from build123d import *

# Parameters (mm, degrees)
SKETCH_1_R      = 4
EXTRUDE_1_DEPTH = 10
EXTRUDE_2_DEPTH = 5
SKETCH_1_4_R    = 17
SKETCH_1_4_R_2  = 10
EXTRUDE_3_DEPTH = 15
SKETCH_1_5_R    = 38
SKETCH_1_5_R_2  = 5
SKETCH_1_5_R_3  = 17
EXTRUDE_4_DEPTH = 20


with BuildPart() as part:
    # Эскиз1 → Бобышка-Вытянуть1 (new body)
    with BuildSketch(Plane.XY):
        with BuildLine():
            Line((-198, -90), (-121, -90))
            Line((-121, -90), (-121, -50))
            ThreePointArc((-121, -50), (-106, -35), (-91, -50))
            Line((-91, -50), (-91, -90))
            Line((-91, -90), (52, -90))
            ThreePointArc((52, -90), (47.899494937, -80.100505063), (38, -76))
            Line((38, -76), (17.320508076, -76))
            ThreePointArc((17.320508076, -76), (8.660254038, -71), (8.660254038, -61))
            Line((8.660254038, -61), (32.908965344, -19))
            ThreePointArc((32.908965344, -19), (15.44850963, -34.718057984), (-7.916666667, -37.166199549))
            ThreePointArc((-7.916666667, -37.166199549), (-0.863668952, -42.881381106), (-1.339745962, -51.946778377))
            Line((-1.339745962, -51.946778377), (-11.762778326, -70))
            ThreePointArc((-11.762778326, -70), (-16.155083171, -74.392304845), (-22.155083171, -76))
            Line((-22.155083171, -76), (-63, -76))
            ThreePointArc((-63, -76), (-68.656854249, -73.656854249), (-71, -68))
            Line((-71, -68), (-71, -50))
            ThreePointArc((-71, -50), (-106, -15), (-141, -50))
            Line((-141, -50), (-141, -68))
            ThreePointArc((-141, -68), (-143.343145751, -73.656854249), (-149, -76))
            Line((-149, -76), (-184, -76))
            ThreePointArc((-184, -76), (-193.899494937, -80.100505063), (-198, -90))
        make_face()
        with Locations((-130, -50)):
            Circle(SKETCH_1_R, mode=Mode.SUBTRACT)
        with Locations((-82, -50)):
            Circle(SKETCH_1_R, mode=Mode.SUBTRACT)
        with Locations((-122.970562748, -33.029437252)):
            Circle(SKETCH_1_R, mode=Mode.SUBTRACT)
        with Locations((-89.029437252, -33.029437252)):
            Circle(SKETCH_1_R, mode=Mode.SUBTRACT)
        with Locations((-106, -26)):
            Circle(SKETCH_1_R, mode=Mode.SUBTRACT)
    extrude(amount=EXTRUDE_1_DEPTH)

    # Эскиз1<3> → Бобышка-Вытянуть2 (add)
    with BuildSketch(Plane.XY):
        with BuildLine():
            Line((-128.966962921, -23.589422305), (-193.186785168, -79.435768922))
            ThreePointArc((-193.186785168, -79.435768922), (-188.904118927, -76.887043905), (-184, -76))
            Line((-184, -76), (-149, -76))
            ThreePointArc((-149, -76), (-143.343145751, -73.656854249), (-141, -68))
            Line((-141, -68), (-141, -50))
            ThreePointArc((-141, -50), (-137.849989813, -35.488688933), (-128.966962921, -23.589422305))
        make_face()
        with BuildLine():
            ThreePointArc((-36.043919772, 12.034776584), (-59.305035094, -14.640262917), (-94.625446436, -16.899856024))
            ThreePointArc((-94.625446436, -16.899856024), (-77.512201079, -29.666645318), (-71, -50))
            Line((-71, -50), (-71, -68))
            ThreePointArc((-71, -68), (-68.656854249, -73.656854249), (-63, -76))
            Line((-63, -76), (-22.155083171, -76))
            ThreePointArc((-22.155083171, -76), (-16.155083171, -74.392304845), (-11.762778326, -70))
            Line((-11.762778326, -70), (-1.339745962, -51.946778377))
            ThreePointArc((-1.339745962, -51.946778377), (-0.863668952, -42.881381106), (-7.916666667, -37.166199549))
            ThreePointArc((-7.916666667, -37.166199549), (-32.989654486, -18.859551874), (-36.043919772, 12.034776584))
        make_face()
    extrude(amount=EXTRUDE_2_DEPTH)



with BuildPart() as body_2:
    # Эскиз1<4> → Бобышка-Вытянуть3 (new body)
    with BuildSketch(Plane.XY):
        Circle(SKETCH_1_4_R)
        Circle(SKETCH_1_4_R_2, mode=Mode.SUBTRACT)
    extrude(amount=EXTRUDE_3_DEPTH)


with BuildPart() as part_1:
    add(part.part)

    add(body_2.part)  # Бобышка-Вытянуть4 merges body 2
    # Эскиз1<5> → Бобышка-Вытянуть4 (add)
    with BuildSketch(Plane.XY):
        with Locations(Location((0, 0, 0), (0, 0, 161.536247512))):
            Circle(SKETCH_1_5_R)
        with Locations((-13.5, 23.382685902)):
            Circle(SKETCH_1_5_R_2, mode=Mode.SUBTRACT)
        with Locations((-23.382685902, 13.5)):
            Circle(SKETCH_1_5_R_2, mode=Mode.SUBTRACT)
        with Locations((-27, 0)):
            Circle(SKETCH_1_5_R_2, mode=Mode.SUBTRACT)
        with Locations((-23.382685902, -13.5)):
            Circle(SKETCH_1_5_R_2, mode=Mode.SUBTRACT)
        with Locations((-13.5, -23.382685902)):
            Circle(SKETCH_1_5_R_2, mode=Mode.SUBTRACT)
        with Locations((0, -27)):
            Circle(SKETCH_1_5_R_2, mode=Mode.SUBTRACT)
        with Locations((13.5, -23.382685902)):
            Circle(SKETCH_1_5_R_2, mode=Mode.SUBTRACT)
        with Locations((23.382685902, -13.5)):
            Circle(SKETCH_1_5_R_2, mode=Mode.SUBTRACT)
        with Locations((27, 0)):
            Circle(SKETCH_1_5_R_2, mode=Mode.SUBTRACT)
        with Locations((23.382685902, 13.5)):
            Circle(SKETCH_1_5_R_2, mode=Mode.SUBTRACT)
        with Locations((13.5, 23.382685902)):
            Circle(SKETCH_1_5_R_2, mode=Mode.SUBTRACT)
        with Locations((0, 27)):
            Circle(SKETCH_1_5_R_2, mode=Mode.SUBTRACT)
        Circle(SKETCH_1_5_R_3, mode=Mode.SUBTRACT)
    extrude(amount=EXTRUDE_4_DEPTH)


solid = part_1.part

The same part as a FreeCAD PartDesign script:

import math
import FreeCAD as App
import Part
import Sketcher
from FreeCAD import Vector
Q = App.Units.Quantity

doc = App.newDocument("Part")
body = doc.addObject("PartDesign::Body", "Body")

# Sketch on XY plane
sketch1 = body.newObject("Sketcher::SketchObject", "Sketch")
sketch1.AttachmentSupport = (doc.getObject("XY_Plane"), [""])
sketch1.MapMode = "FlatFace"
sketch1.addGeometry([
    Part.LineSegment(Vector(-198, -90, 0), Vector(-121, -90, 0)),  # 0
    Part.LineSegment(Vector(-121, -90, 0), Vector(-121, -50, 0)),  # 1
    Part.ArcOfCircle(Part.Circle(Vector(-106, -50, 0), Vector(0, 0, 1), 15), math.radians(0), math.radians(180)),  # 2
    Part.LineSegment(Vector(-91, -50, 0), Vector(-91, -90, 0)),  # 3
    Part.LineSegment(Vector(-91, -90, 0), Vector(52, -90, 0)),  # 4
    Part.ArcOfCircle(Part.Circle(Vector(38, -90, 0), Vector(0, 0, 1), 14), math.radians(0), math.radians(90)),  # 5
    Part.LineSegment(Vector(38, -76, 0), Vector(17.3, -76, 0)),  # 6
    Part.ArcOfCircle(Part.Circle(Vector(17.3, -66, 0), Vector(0, 0, 1), 10), math.radians(150), math.radians(270)),  # 7
    Part.LineSegment(Vector(8.7, -61, 0), Vector(32.9, -19, 0)),  # 8
    Part.ArcOfCircle(Part.Circle(Vector(0, 0, 0), Vector(0, 0, 1), 38), math.radians(-102), math.radians(-30)),  # 9
    Part.ArcOfCircle(Part.Circle(Vector(-10, -46.9, 0), Vector(0, 0, 1), 10), math.radians(-30), math.radians(78)),  # 10
    Part.LineSegment(Vector(-1.3, -51.9, 0), Vector(-11.8, -70, 0)),  # 11
    Part.ArcOfCircle(Part.Circle(Vector(-22.2, -64, 0), Vector(0, 0, 1), 12), math.radians(-90), math.radians(-30)),  # 12
    Part.LineSegment(Vector(-22.2, -76, 0), Vector(-63, -76, 0)),  # 13
    Part.ArcOfCircle(Part.Circle(Vector(-63, -68, 0), Vector(0, 0, 1), 8), math.radians(-180), math.radians(-90)),  # 14
    Part.LineSegment(Vector(-71, -68, 0), Vector(-71, -50, 0)),  # 15
    Part.ArcOfCircle(Part.Circle(Vector(-106, -50, 0), Vector(0, 0, 1), 35), math.radians(0), math.radians(180)),  # 16
    Part.LineSegment(Vector(-141, -50, 0), Vector(-141, -68, 0)),  # 17
    Part.ArcOfCircle(Part.Circle(Vector(-149, -68, 0), Vector(0, 0, 1), 8), math.radians(-90), math.radians(0)),  # 18
    Part.LineSegment(Vector(-149, -76, 0), Vector(-184, -76, 0)),  # 19
    Part.ArcOfCircle(Part.Circle(Vector(-184, -90, 0), Vector(0, 0, 1), 14), math.radians(90), math.radians(180)),  # 20
    Part.Circle(Vector(-130, -50, 0), Vector(0, 0, 1), 4),  # 21
    Part.Circle(Vector(-82, -50, 0), Vector(0, 0, 1), 4),  # 22
    Part.Circle(Vector(-123, -33, 0), Vector(0, 0, 1), 4),  # 23
    Part.Circle(Vector(-89, -33, 0), Vector(0, 0, 1), 4),  # 24
    Part.Circle(Vector(-106, -26, 0), Vector(0, 0, 1), 4),  # 25
], False)
sketch1.addConstraint([
    Sketcher.Constraint("Coincident", 0, 2, 1, 1),
    Sketcher.Constraint("Tangent", 1, 2, 2, 2),
    Sketcher.Constraint("Tangent", 2, 1, 3, 1),
    Sketcher.Constraint("Coincident", 3, 2, 4, 1),
    Sketcher.Constraint("Coincident", 4, 2, 5, 1),
    Sketcher.Constraint("Tangent", 5, 2, 6, 1),
    Sketcher.Constraint("Tangent", 6, 2, 7, 2),
    Sketcher.Constraint("Tangent", 7, 1, 8, 1),
    Sketcher.Constraint("Tangent", 8, 2, 9, 2),
    Sketcher.Constraint("Tangent", 9, 1, 10, 2),
    Sketcher.Constraint("Tangent", 10, 1, 11, 1),
    Sketcher.Constraint("Tangent", 11, 2, 12, 2),
    Sketcher.Constraint("Tangent", 12, 1, 13, 1),
    Sketcher.Constraint("Tangent", 13, 2, 14, 2),
    Sketcher.Constraint("Tangent", 14, 1, 15, 1),
    Sketcher.Constraint("Tangent", 15, 2, 16, 1),
    Sketcher.Constraint("Tangent", 16, 2, 17, 1),
    Sketcher.Constraint("Tangent", 17, 2, 18, 2),
    Sketcher.Constraint("Tangent", 18, 1, 19, 1),
    Sketcher.Constraint("Tangent", 19, 2, 20, 1),
    Sketcher.Constraint("Coincident", 20, 2, 0, 1),
    Sketcher.Constraint("Horizontal", 0),
    Sketcher.Constraint("Vertical", 1),
    Sketcher.Constraint("Vertical", 3),
    Sketcher.Constraint("Horizontal", 4),
    Sketcher.Constraint("Horizontal", 6),
    Sketcher.Constraint("Horizontal", 13),
    Sketcher.Constraint("Vertical", 15),
    Sketcher.Constraint("Vertical", 17),
    Sketcher.Constraint("Horizontal", 19),
    Sketcher.Constraint("Coincident", 9, 3, -1, 1),
    Sketcher.Constraint("Coincident", 16, 3, 2, 3),
    Sketcher.Constraint("Equal", 7, 10),
    Sketcher.Constraint("Equal", 14, 18),
    Sketcher.Constraint("Equal", 5, 20),
    Sketcher.Constraint("Equal", 21, 22),
    Sketcher.Constraint("Equal", 22, 23),
    Sketcher.Constraint("Equal", 23, 24),
    Sketcher.Constraint("Equal", 24, 25),
    Sketcher.Constraint("Parallel", 8, 11),
    Sketcher.Constraint("Horizontal", 14, 3, 18, 3),
    Sketcher.Constraint("Horizontal", 5, 3, 20, 3),
    Sketcher.Constraint("Horizontal", 16, 3, 21, 3),
    Sketcher.Constraint("Horizontal", 21, 3, 22, 3),
    Sketcher.Constraint("Horizontal", 23, 3, 24, 3),
    Sketcher.Constraint("Horizontal", 20, 3, 0, 2),
    Sketcher.Constraint("Horizontal", 0, 2, 3, 2),
    Sketcher.Constraint("Vertical", 16, 3, 25, 3),
    Sketcher.Constraint("Diameter", 21, Q("8 mm")),
    Sketcher.Constraint("Radius", 2, Q("15 mm")),
    Sketcher.Constraint("Radius", 5, Q("14 mm")),
    Sketcher.Constraint("Radius", 7, Q("10 mm")),
    Sketcher.Constraint("Radius", 9, Q("38 mm")),
    Sketcher.Constraint("Radius", 12, Q("12 mm")),
    Sketcher.Constraint("Radius", 14, Q("8 mm")),
    Sketcher.Constraint("Radius", 16, Q("35 mm")),
    Sketcher.Constraint("DistanceX", 0, 1, 0, 2, Q("77 mm")),
    Sketcher.Constraint("DistanceX", 4, 1, 4, 2, Q("143 mm")),
    Sketcher.Constraint("DistanceY", 1, 1, 1, 2, Q("40 mm")),
    Sketcher.Constraint("Angle", 8, Q("60 deg")),
    Sketcher.Constraint("DistanceX", 2, 3, -1, 1, Q("106 mm")),
    Sketcher.Constraint("DistanceY", 2, 3, -1, 1, Q("50 mm")),
    Sketcher.Constraint("DistanceX", 10, 3, -1, 1, Q("10 mm")),
    Sketcher.Constraint("DistanceX", 21, 3, -1, 1, Q("130 mm")),
    Sketcher.Constraint("DistanceX", 22, 3, -1, 1, Q("82 mm")),
    Sketcher.Constraint("DistanceY", 25, 3, -1, 1, Q("26 mm")),
    Sketcher.Constraint("DistanceX", 23, 3, -1, 1, Q("122.970563 mm")),
    Sketcher.Constraint("DistanceY", 23, 3, -1, 1, Q("33.029437 mm")),
    Sketcher.Constraint("DistanceX", 24, 3, -1, 1, Q("89.029437 mm")),
])
pad1 = body.newObject("PartDesign::Pad", "Pad")
pad1.Profile = sketch1
pad1.Length = 10

# Sketch on XY plane
sketch2 = body.newObject("Sketcher::SketchObject", "Sketch001")
sketch2.AttachmentSupport = (doc.getObject("XY_Plane"), [""])
sketch2.MapMode = "FlatFace"
sketch2.addGeometry([
    Part.LineSegment(Vector(-129, -24, 0), Vector(-193, -79, 0)),  # 0
    Part.ArcOfCircle(Part.Circle(Vector(-184, -90, 0), Vector(0, 0, 1), 14), math.radians(90), math.radians(131)),  # 1
    Part.LineSegment(Vector(-184, -76, 0), Vector(-149, -76, 0)),  # 2
    Part.ArcOfCircle(Part.Circle(Vector(-149, -68, 0), Vector(0, 0, 1), 8), math.radians(-90), math.radians(0)),  # 3
    Part.LineSegment(Vector(-141, -68, 0), Vector(-141, -50, 0)),  # 4
    Part.ArcOfCircle(Part.Circle(Vector(-106, -50, 0), Vector(0, 0, 1), 35), math.radians(131), math.radians(180)),  # 5
    Part.ArcOfCircle(Part.Circle(Vector(-80, 27, 0), Vector(0, 0, 1), 46), math.radians(-109), math.radians(-18)),  # 6
    Part.ArcOfCircle(Part.Circle(Vector(-106, -50, 0), Vector(0, 0, 1), 35), math.radians(0), math.radians(71)),  # 7
    Part.LineSegment(Vector(-71, -50, 0), Vector(-71, -68, 0)),  # 8
    Part.ArcOfCircle(Part.Circle(Vector(-63, -68, 0), Vector(0, 0, 1), 8), math.radians(-180), math.radians(-90)),  # 9
    Part.LineSegment(Vector(-63, -76, 0), Vector(-22, -76, 0)),  # 10
    Part.ArcOfCircle(Part.Circle(Vector(-22, -64, 0), Vector(0, 0, 1), 12), math.radians(-90), math.radians(-30)),  # 11
    Part.LineSegment(Vector(-12, -70, 0), Vector(-1, -52, 0)),  # 12
    Part.ArcOfCircle(Part.Circle(Vector(-10, -47, 0), Vector(0, 0, 1), 10), math.radians(-30), math.radians(78)),  # 13
    Part.ArcOfCircle(Part.Circle(Vector(0, 0, 0), Vector(0, 0, 1), 38), math.radians(162), math.radians(258)),  # 14
], False)
sketch2.addConstraint([
    Sketcher.Constraint("Tangent", 0, 2, 1, 2),
    Sketcher.Constraint("Tangent", 1, 1, 2, 1),
    Sketcher.Constraint("Tangent", 2, 2, 3, 1),
    Sketcher.Constraint("Tangent", 3, 2, 4, 1),
    Sketcher.Constraint("Tangent", 4, 2, 5, 2),
    Sketcher.Constraint("Tangent", 5, 1, 0, 1),
    Sketcher.Constraint("Tangent", 6, 1, 7, 2),
    Sketcher.Constraint("Tangent", 7, 1, 8, 1),
    Sketcher.Constraint("Tangent", 8, 2, 9, 1),
    Sketcher.Constraint("Tangent", 9, 2, 10, 1),
    Sketcher.Constraint("Tangent", 10, 2, 11, 1),
    Sketcher.Constraint("Tangent", 11, 2, 12, 1),
    Sketcher.Constraint("Tangent", 12, 2, 13, 1),
    Sketcher.Constraint("Tangent", 13, 2, 14, 2),
    Sketcher.Constraint("Tangent", 14, 1, 6, 2),
    Sketcher.Constraint("Horizontal", 2),
    Sketcher.Constraint("Vertical", 4),
    Sketcher.Constraint("Vertical", 8),
    Sketcher.Constraint("Horizontal", 10),
    Sketcher.Constraint("Coincident", 14, 3, -1, 1),
    Sketcher.Constraint("Coincident", 7, 3, 5, 3),
    Sketcher.Constraint("Equal", 5, 7),
    Sketcher.Constraint("Equal", 3, 9),
    Sketcher.Constraint("Horizontal", 3, 3, 9, 3),
    Sketcher.Constraint("Radius", 1, Q("14 mm")),
    Sketcher.Constraint("Radius", 3, Q("8 mm")),
    Sketcher.Constraint("Radius", 5, Q("35 mm")),
    Sketcher.Constraint("Radius", 6, Q("46 mm")),
    Sketcher.Constraint("Radius", 11, Q("12 mm")),
    Sketcher.Constraint("Radius", 13, Q("10 mm")),
    Sketcher.Constraint("Radius", 14, Q("38 mm")),
    Sketcher.Constraint("DistanceX", 2, 1, 2, 2, Q("35 mm")),
    Sketcher.Constraint("DistanceY", 4, 1, 4, 2, Q("18 mm")),
    Sketcher.Constraint("Angle", 12, Q("60 deg")),
    Sketcher.Constraint("DistanceX", 1, 3, -1, 1, Q("184 mm")),
    Sketcher.Constraint("DistanceY", 1, 3, -1, 1, Q("90 mm")),
    Sketcher.Constraint("DistanceX", 13, 3, -1, 1, Q("10 mm")),
])
pad2 = body.newObject("PartDesign::Pad", "Pad001")
pad2.Profile = sketch2
pad2.Length = 5
body2 = doc.addObject("PartDesign::Body", "Body001")

# Sketch on XY plane
sketch3 = body2.newObject("Sketcher::SketchObject", "Sketch002")
sketch3.AttachmentSupport = (doc.getObject("XY_Plane001"), [""])
sketch3.MapMode = "FlatFace"
sketch3.addGeometry([
    Part.Circle(Vector(0, 0, 0), Vector(0, 0, 1), 17),
    Part.Circle(Vector(0, 0, 0), Vector(0, 0, 1), 10),
], False)
sketch3.addConstraint([
    Sketcher.Constraint("Coincident", 0, 3, -1, 1),
    Sketcher.Constraint("Coincident", 1, 3, -1, 1),
    Sketcher.Constraint("Diameter", 0, Q("34 mm")),
    Sketcher.Constraint("Diameter", 1, Q("20 mm")),
])
pad3 = body2.newObject("PartDesign::Pad", "Pad002")
pad3.Profile = sketch3
pad3.Length = 15
body.AllowCompound = True
doc.recompute()

boolean = body.newObject("PartDesign::Boolean", "Boolean")
boolean.Type = "Fuse"
boolean.addObjects([body2])

# Sketch on XY plane
sketch4 = body.newObject("Sketcher::SketchObject", "Sketch003")
sketch4.AttachmentSupport = (doc.getObject("XY_Plane"), [""])
sketch4.MapMode = "FlatFace"
sketch4.addGeometry([
    Part.Circle(Vector(0, 0, 0), Vector(0, 0, 1), 38),  # 0
    Part.Circle(Vector(23, 14, 0), Vector(0, 0, 1), 5),  # 1
    Part.Circle(Vector(14, 23, 0), Vector(0, 0, 1), 5),  # 2
    Part.Circle(Vector(27, 0, 0), Vector(0, 0, 1), 5),  # 3
    Part.Circle(Vector(0, 27, 0), Vector(0, 0, 1), 5),  # 4
    Part.Circle(Vector(-14, 23, 0), Vector(0, 0, 1), 5),  # 5
    Part.Circle(Vector(-23, 14, 0), Vector(0, 0, 1), 5),  # 6
    Part.Circle(Vector(23, -14, 0), Vector(0, 0, 1), 5),  # 7
    Part.Circle(Vector(0, 0, 0), Vector(0, 0, 1), 17),  # 8
    Part.Circle(Vector(14, -23, 0), Vector(0, 0, 1), 5),  # 9
    Part.Circle(Vector(0, -27, 0), Vector(0, 0, 1), 5),  # 10
    Part.Circle(Vector(-27, 0, 0), Vector(0, 0, 1), 5),  # 11
    Part.Circle(Vector(-14, -23, 0), Vector(0, 0, 1), 5),  # 12
    Part.Circle(Vector(-23, -14, 0), Vector(0, 0, 1), 5),  # 13
], False)
sketch4.addConstraint([
    Sketcher.Constraint("Coincident", 0, 3, -1, 1),
    Sketcher.Constraint("Coincident", 8, 3, -1, 1),
    Sketcher.Constraint("Equal", 1, 2),
    Sketcher.Constraint("Equal", 2, 3),
    Sketcher.Constraint("Equal", 3, 4),
    Sketcher.Constraint("Equal", 4, 5),
    Sketcher.Constraint("Equal", 5, 6),
    Sketcher.Constraint("Equal", 6, 7),
    Sketcher.Constraint("Equal", 7, 9),
    Sketcher.Constraint("Equal", 9, 10),
    Sketcher.Constraint("Equal", 10, 11),
    Sketcher.Constraint("Equal", 11, 12),
    Sketcher.Constraint("Equal", 12, 13),
    Sketcher.Constraint("Symmetric", 6, 3, 7, 3, -1, 1),
    Sketcher.Constraint("Symmetric", 5, 3, 9, 3, -1, 1),
    Sketcher.Constraint("Symmetric", 4, 3, 10, 3, -1, 1),
    Sketcher.Constraint("Symmetric", 3, 3, 11, 3, -1, 1),
    Sketcher.Constraint("Symmetric", 2, 3, 12, 3, -1, 1),
    Sketcher.Constraint("Symmetric", 1, 3, 13, 3, -1, 1),
    Sketcher.Constraint("Symmetric", 2, 3, 5, 3, -2),
    Sketcher.Constraint("Symmetric", 1, 3, 6, 3, -2),
    Sketcher.Constraint("PointOnObject", 3, 3, -1),
    Sketcher.Constraint("PointOnObject", 4, 3, -2),
    Sketcher.Constraint("Diameter", 0, Q("76 mm")),
    Sketcher.Constraint("Diameter", 1, Q("10 mm")),
    Sketcher.Constraint("Diameter", 8, Q("34 mm")),
    Sketcher.Constraint("DistanceX", -1, 1, 3, 3, Q("27 mm")),
    Sketcher.Constraint("DistanceY", -1, 1, 4, 3, Q("27 mm")),
    Sketcher.Constraint("DistanceX", 5, 3, 2, 3, Q("27 mm")),
    Sketcher.Constraint("DistanceY", 7, 3, 1, 3, Q("27 mm")),
    Sketcher.Constraint("DistanceX", 6, 3, 1, 3, Q("46.765372 mm")),
    Sketcher.Constraint("DistanceY", -1, 1, 2, 3, Q("23.382686 mm")),
])
pad4 = body.newObject("PartDesign::Pad", "Pad003")
pad4.Profile = sketch4
pad4.Length = 20

doc.recompute()
